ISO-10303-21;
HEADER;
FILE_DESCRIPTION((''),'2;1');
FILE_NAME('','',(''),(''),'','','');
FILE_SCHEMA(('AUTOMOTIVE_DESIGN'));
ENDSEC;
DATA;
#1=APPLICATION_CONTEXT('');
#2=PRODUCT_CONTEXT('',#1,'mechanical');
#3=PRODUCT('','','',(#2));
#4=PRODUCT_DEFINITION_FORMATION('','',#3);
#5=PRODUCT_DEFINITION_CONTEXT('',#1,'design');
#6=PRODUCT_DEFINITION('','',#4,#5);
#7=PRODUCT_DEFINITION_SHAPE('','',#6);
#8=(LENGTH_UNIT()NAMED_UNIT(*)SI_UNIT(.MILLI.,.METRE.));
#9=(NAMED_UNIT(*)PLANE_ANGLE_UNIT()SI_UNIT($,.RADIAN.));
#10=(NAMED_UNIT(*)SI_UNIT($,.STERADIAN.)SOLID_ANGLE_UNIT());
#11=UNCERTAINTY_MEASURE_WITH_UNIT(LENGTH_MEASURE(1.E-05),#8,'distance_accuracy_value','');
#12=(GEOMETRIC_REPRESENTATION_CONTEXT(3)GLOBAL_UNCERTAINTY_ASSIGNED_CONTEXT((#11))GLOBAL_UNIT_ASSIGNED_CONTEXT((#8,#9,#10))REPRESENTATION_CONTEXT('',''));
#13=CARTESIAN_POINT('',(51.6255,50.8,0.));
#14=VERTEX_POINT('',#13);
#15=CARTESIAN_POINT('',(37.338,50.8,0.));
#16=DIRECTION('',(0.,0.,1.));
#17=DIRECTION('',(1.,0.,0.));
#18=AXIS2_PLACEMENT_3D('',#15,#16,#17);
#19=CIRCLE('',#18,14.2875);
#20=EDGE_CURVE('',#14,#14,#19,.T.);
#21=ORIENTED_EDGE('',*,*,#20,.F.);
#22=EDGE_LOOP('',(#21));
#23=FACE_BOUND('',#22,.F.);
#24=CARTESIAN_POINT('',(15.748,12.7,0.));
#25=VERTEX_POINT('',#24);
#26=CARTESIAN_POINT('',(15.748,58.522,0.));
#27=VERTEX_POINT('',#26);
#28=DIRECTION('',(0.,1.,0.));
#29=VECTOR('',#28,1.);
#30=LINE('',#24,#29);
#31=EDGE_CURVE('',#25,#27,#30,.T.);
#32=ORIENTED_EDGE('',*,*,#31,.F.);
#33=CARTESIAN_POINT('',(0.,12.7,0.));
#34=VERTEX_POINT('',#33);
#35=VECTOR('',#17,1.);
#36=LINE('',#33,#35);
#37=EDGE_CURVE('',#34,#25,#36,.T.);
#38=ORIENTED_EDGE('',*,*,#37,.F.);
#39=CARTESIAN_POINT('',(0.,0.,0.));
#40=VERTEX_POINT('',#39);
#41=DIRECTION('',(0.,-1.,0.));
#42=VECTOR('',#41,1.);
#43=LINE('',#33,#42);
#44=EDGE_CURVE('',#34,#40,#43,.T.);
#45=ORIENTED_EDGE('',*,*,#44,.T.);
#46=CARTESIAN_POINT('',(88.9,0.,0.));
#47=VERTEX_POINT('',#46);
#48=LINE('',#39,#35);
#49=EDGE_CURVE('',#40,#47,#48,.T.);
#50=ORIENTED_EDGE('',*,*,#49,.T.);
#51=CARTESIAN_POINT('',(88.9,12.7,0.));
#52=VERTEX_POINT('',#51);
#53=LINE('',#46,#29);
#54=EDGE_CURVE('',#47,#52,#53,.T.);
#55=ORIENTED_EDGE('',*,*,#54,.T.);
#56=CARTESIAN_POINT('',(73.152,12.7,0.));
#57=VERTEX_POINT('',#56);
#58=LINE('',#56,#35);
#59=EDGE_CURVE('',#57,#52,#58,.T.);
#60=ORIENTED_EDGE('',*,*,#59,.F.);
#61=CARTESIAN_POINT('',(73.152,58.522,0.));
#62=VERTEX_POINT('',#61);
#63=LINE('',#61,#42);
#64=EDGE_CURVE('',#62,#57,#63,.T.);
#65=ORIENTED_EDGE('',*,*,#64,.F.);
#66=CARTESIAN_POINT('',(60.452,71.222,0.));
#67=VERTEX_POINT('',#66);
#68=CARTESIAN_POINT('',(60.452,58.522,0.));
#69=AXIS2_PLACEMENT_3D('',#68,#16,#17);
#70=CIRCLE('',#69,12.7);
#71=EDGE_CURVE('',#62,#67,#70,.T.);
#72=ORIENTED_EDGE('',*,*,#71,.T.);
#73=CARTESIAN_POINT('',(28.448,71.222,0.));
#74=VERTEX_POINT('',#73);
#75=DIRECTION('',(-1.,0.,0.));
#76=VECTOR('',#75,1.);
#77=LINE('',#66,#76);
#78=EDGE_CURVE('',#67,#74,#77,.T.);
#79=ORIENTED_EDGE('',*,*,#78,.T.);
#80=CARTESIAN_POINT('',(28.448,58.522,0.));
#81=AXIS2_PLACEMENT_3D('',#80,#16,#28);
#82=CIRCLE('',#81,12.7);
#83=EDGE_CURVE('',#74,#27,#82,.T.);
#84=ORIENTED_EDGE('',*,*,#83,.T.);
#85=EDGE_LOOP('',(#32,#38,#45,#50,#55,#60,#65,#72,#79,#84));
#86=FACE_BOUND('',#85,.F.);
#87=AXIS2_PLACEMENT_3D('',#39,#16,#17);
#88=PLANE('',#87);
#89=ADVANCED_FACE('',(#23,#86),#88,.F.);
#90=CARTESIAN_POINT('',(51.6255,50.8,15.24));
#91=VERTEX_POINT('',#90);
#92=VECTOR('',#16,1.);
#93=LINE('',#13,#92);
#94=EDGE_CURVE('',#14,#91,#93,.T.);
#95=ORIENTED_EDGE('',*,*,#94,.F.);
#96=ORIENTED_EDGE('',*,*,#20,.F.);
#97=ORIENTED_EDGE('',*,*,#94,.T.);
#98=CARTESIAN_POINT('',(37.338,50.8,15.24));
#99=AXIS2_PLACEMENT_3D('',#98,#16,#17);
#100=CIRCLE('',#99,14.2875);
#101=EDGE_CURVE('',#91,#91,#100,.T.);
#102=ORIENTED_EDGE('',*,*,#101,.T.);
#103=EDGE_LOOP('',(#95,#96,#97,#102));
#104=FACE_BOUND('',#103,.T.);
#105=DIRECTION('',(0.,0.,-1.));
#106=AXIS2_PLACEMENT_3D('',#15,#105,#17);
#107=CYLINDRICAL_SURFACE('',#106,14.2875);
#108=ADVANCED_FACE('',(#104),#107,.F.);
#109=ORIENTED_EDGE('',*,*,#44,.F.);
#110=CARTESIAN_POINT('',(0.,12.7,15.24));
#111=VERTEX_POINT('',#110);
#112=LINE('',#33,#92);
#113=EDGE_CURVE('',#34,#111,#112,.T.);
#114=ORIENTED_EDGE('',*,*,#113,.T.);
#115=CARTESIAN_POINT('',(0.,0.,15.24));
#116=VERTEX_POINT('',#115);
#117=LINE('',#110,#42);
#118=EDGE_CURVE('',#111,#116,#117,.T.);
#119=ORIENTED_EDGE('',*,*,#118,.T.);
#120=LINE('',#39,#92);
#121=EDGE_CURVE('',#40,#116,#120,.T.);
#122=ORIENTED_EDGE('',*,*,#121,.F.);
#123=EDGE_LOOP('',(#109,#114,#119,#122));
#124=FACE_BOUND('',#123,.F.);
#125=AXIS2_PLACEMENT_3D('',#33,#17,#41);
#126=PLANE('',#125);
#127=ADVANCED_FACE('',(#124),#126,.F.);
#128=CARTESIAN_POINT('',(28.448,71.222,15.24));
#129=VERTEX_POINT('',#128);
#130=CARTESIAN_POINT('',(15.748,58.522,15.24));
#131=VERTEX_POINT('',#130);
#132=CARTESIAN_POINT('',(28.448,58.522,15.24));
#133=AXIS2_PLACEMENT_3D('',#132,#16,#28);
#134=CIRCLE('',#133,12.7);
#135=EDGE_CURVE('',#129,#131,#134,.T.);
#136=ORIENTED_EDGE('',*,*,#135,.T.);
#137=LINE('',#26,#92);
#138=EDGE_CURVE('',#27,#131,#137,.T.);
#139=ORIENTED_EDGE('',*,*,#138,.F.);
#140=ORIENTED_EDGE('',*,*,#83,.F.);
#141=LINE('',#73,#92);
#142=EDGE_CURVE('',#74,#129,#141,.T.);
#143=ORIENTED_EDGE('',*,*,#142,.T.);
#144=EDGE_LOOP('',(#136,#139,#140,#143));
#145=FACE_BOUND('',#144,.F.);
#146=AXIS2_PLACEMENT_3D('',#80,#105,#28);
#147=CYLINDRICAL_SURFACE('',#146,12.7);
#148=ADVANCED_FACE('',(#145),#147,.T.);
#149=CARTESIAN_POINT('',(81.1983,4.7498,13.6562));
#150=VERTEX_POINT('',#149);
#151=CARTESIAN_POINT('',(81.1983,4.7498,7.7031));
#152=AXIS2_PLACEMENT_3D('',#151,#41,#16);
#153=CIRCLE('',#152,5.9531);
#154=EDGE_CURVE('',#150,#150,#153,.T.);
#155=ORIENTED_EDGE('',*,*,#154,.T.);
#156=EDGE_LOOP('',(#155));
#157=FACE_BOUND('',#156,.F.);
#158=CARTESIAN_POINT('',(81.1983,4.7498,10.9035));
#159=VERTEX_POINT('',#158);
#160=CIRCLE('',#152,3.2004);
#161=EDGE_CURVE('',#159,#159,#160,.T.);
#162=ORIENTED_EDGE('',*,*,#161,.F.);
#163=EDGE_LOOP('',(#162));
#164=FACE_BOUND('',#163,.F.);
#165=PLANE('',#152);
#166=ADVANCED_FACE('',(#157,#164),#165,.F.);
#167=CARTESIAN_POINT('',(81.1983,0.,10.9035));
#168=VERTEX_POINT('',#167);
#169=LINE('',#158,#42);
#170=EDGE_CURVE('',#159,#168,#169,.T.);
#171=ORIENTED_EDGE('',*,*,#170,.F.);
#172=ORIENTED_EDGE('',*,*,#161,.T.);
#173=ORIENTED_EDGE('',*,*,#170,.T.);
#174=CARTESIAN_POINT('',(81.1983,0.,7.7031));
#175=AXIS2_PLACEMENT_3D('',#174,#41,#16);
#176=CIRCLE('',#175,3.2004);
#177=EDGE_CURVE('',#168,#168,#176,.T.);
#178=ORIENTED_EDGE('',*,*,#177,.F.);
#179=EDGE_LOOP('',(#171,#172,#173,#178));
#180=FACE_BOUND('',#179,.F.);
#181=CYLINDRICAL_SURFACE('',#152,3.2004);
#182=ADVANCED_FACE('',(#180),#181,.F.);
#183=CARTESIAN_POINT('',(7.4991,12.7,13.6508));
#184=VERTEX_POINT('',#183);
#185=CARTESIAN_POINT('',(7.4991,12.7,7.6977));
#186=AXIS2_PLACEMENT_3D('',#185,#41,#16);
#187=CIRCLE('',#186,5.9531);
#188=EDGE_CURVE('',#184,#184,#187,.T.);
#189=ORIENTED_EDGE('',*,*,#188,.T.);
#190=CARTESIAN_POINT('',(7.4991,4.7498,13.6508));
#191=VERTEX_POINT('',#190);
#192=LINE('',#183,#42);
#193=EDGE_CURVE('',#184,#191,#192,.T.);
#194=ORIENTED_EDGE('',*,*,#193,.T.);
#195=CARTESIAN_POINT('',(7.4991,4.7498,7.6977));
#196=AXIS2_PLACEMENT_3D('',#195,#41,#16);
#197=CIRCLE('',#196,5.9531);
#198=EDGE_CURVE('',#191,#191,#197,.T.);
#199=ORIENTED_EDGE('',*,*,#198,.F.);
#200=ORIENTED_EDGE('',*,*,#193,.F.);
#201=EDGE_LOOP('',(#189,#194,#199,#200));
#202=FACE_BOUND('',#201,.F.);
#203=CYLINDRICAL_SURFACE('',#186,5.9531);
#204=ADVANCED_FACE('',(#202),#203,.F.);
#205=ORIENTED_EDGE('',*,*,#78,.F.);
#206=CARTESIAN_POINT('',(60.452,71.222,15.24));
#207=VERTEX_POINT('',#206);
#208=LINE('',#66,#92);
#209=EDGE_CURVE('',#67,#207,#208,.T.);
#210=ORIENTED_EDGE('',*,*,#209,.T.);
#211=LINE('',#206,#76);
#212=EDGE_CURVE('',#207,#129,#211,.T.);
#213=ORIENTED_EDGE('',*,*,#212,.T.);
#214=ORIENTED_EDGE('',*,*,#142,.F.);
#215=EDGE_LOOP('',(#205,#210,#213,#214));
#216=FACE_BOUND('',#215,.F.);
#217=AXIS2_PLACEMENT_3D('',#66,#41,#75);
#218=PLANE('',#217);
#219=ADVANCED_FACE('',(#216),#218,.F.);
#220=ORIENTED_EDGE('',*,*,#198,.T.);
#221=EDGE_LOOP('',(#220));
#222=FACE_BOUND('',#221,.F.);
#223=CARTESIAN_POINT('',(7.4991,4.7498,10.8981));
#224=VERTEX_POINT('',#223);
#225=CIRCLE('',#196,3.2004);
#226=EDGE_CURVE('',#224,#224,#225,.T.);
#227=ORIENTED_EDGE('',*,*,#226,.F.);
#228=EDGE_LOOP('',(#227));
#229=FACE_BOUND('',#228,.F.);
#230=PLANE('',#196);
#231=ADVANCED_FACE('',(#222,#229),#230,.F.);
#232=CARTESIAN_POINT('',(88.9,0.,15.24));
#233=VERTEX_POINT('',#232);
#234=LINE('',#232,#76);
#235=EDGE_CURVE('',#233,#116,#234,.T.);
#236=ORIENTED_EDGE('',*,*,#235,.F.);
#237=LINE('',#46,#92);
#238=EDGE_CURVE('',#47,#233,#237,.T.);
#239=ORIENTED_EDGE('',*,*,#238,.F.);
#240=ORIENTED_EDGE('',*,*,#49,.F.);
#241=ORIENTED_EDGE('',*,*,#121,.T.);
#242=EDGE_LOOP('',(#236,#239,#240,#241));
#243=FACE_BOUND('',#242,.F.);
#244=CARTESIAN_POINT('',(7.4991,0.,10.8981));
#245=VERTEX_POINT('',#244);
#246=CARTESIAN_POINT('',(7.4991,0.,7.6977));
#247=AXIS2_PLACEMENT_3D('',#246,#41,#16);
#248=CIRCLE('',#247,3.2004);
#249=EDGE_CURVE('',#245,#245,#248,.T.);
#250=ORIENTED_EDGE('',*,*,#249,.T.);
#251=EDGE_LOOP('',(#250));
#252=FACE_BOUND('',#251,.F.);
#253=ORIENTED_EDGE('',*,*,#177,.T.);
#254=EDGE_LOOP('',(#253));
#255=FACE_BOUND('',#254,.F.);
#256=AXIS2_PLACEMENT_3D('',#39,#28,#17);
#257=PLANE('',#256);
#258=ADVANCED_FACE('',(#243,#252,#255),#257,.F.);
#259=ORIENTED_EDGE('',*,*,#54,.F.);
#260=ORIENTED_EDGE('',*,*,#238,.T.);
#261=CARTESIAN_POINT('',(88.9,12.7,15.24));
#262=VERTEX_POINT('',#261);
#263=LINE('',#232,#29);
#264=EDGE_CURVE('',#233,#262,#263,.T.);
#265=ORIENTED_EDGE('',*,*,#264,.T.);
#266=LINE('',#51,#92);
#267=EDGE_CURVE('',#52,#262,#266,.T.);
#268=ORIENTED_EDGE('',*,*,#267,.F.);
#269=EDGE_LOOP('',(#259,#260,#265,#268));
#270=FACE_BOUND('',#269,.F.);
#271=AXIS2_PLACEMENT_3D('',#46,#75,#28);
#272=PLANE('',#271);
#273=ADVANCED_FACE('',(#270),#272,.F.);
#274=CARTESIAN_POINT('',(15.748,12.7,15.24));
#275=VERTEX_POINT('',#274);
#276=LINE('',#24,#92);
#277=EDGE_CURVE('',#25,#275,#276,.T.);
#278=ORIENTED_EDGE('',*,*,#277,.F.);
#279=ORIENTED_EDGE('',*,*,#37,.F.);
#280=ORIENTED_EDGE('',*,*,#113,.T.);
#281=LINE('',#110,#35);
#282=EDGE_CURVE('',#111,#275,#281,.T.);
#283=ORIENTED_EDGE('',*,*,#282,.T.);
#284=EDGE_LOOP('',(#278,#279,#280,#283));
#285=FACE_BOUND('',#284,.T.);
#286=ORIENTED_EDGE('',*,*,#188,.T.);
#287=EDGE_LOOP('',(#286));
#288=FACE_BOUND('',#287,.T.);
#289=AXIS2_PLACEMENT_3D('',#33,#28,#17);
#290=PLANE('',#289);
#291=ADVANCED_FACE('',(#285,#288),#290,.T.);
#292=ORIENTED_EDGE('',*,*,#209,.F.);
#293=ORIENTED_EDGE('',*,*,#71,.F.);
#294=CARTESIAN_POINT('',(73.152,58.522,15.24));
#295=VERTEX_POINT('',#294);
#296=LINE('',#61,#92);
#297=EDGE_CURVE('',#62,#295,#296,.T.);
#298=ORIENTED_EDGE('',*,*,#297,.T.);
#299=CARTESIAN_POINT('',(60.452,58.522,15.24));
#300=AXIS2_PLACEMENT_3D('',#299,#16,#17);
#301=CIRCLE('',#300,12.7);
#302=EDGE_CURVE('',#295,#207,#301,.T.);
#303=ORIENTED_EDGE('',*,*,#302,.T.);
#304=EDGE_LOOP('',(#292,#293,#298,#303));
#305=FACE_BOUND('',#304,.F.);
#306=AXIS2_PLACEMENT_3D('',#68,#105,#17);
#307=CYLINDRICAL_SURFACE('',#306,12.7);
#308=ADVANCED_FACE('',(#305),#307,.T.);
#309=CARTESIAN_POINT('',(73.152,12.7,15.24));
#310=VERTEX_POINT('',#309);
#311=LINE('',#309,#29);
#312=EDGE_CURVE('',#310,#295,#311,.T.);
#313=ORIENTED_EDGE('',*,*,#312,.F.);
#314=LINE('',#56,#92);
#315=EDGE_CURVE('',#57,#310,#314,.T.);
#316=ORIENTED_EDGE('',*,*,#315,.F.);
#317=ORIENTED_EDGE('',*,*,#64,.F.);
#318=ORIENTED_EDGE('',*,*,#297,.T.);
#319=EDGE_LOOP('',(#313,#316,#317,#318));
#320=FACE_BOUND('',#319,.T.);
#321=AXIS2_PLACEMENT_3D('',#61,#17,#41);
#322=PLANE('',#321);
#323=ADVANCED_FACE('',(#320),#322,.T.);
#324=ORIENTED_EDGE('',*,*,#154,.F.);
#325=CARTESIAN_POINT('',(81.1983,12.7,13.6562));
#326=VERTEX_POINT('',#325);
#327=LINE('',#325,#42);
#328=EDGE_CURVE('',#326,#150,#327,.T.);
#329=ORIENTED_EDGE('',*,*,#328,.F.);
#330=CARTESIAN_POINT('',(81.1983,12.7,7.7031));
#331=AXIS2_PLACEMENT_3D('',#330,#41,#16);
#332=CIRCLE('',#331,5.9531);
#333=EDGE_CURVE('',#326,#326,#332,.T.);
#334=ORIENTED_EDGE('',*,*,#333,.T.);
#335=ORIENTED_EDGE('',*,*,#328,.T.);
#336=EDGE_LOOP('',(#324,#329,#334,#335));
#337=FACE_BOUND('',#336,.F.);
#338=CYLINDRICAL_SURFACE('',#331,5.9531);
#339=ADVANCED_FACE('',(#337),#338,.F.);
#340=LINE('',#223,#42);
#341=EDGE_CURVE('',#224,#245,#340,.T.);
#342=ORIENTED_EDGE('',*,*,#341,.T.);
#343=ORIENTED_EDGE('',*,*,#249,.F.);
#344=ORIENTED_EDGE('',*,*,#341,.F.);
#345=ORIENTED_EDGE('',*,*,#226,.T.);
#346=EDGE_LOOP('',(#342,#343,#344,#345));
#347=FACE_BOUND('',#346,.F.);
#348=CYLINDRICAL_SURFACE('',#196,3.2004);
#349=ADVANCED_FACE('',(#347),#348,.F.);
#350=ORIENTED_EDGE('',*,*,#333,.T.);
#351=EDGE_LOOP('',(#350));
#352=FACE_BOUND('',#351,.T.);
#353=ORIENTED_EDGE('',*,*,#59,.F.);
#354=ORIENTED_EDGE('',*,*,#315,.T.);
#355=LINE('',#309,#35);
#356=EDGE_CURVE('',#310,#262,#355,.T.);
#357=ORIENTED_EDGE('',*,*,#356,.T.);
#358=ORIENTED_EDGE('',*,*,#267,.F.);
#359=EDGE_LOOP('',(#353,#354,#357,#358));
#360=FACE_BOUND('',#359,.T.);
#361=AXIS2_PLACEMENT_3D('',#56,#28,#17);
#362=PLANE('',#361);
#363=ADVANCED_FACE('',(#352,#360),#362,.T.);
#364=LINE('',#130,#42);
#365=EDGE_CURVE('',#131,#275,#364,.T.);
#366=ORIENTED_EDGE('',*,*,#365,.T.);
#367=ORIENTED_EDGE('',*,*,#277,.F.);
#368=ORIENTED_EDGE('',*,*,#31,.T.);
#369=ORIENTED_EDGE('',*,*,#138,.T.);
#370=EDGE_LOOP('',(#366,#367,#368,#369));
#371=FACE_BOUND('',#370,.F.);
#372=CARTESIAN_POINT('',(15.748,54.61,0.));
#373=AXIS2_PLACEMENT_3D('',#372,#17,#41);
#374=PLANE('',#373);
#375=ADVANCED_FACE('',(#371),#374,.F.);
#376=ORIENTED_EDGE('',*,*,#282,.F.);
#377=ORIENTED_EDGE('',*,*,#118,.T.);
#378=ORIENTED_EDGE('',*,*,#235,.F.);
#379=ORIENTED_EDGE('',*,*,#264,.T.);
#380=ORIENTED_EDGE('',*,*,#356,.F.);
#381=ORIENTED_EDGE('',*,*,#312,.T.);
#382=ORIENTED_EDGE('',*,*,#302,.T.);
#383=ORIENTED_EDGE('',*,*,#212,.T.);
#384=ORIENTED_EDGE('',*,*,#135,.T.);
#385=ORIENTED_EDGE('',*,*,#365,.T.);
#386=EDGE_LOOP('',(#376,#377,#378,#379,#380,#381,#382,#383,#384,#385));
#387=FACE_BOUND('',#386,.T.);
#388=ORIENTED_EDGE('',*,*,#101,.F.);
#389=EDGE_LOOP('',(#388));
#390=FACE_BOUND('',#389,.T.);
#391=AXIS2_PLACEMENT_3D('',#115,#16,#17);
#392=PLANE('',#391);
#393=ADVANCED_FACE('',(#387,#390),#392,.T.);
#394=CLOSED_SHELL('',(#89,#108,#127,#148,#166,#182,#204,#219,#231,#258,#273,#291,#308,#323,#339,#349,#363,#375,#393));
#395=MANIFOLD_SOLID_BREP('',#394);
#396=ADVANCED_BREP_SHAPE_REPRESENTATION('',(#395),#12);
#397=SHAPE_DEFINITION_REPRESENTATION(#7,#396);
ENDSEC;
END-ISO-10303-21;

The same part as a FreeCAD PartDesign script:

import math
import FreeCAD as App
import Part
import Sketcher

V = App.Vector
Q = App.Units.Quantity

doc = App.newDocument("Part")
body = doc.addObject("PartDesign::Body", "Body")

# Sketch on XY plane
sketch1 = body.newObject("Sketcher::SketchObject", "Sketch")
sketch1.AttachmentSupport = (doc.getObject("XY_Plane"), [""])
sketch1.MapMode = "FlatFace"
sketch1.addGeometry(Part.LineSegment(V(0, 13, 0), V(0, 0, 0)), False)
sketch1.addGeometry(Part.LineSegment(V(0, 0, 0), V(89, 0, 0)), False)
sketch1.addGeometry(Part.LineSegment(V(89, 0, 0), V(89, 13, 0)), False)
sketch1.addGeometry(Part.LineSegment(V(89, 13, 0), V(73, 13, 0)), False)
sketch1.addGeometry(Part.LineSegment(V(73, 13, 0), V(73, 59, 0)), False)
sketch1.addGeometry(Part.ArcOfCircle(Part.Circle(V(60, 59, 0), V(0, 0, 1), 13), math.radians(0), math.radians(90)), False)
sketch1.addGeometry(Part.LineSegment(V(60, 71, 0), V(28, 71, 0)), False)
sketch1.addGeometry(Part.ArcOfCircle(Part.Circle(V(28, 59, 0), V(0, 0, 1), 13), math.radians(90), math.radians(180)), False)
sketch1.addGeometry(Part.LineSegment(V(16, 59, 0), V(16, 13, 0)), False)
sketch1.addGeometry(Part.LineSegment(V(16, 13, 0), V(0, 13, 0)), False)
sketch1.addGeometry(Part.Circle(V(37, 51, 0), V(0, 0, 1), 14), False)
sketch1.addConstraint(Sketcher.Constraint("Coincident", 0, 2, 1, 1))
sketch1.addConstraint(Sketcher.Constraint("Coincident", 1, 2, 2, 1))
sketch1.addConstraint(Sketcher.Constraint("Coincident", 2, 2, 3, 1))
sketch1.addConstraint(Sketcher.Constraint("Coincident", 3, 2, 4, 1))
sketch1.addConstraint(Sketcher.Constraint("Tangent", 4, 2, 5, 1))
sketch1.addConstraint(Sketcher.Constraint("Tangent", 5, 2, 6, 1))
sketch1.addConstraint(Sketcher.Constraint("Tangent", 6, 2, 7, 1))
sketch1.addConstraint(Sketcher.Constraint("Tangent", 7, 2, 8, 1))
sketch1.addConstraint(Sketcher.Constraint("Coincident", 8, 2, 9, 1))
sketch1.addConstraint(Sketcher.Constraint("Coincident", 9, 2, 0, 1))
sketch1.addConstraint(Sketcher.Constraint("Vertical", 0))
sketch1.addConstraint(Sketcher.Constraint("Horizontal", 1))
sketch1.addConstraint(Sketcher.Constraint("Vertical", 2))
sketch1.addConstraint(Sketcher.Constraint("Horizontal", 3))
sketch1.addConstraint(Sketcher.Constraint("Vertical", 4))
sketch1.addConstraint(Sketcher.Constraint("Horizontal", 6))
sketch1.addConstraint(Sketcher.Constraint("Vertical", 8))
sketch1.addConstraint(Sketcher.Constraint("Horizontal", 9))
sketch1.addConstraint(Sketcher.Constraint("Coincident", 0, 2, -1, 1))
sketch1.addConstraint(Sketcher.Constraint("Equal", 5, 7))
sketch1.addConstraint(Sketcher.Constraint("Horizontal", 3, 2, 8, 2))
sketch1.addConstraint(Sketcher.Constraint("Equal", 3, 9))
sketch1.addConstraint(Sketcher.Constraint("Radius", 5, Q("0.5 in")))
sketch1.addConstraint(Sketcher.Constraint("Diameter", 10, Q("1.125 in")))
sketch1.addConstraint(Sketcher.Constraint("DistanceX", 1, 1, 1, 2, Q("3.5 in")))
sketch1.addConstraint(Sketcher.Constraint("DistanceY", 0, 2, 0, 1, Q("0.5 in")))
sketch1.addConstraint(Sketcher.Constraint("DistanceX", 3, 2, 3, 1, Q("0.62 in")))
sketch1.addConstraint(Sketcher.Constraint("DistanceX", 7, 2, 10, 3, Q("0.85 in")))
sketch1.addConstraint(Sketcher.Constraint("DistanceY", -1, 1, 10, 3, Q("2 in")))
sketch1.addConstraint(Sketcher.Constraint("DistanceY", 4, 1, 4, 2, 45.822))
pad1 = body.newObject("PartDesign::Pad", "Pad")
pad1.Profile = sketch1
pad1.Length = Q("0.6 in")

# Sketch on XZ plane
sketch2 = body.newObject("Sketcher::SketchObject", "Sketch001")
sketch2.AttachmentSupport = (doc.getObject("XZ_Plane"), [""])
sketch2.MapMode = "FlatFace"
sketch2.AttachmentOffset = App.Placement(V(0, 0, -0.5 * 25.4), App.Rotation())
sketch2.addGeometry(Part.Circle(V(81.2, 7.7, 0), V(0, 0, 1), 3.2), False)
sketch2.addConstraint(Sketcher.Constraint("Diameter", 0, Q("0.252 in")))
sketch2.addConstraint(Sketcher.Constraint("DistanceX", -1, 1, 0, 3, 81.1983))
sketch2.addConstraint(Sketcher.Constraint("DistanceY", -1, 1, 0, 3, 7.703))
doc.recompute()
hole = body.newObject("PartDesign::Hole", "Hole")
hole.Profile = sketch2
hole.ThreadType = "None"
hole.Diameter = Q("0.252 in")
hole.DepthType = "ThroughAll"
hole.HoleCutType = "Counterbore"
hole.HoleCutDiameter = Q("0.468748 in")
hole.HoleCutDepth = Q("0.313 in")
hole.Reversed = True

# Sketch on XZ plane
sketch3 = body.newObject("Sketcher::SketchObject", "Sketch002")
sketch3.AttachmentSupport = (doc.getObject("XZ_Plane"), [""])
sketch3.MapMode = "FlatFace"
sketch3.AttachmentOffset = App.Placement(V(0, 0, -0.5 * 25.4), App.Rotation())
sketch3.addGeometry(Part.Circle(V(7.5, 7.7, 0), V(0, 0, 1), 3.2), False)
sketch3.addConstraint(Sketcher.Constraint("Diameter", 0, Q("0.252 in")))
sketch3.addConstraint(Sketcher.Constraint("DistanceX", -1, 1, 0, 3, 7.499))
sketch3.addConstraint(Sketcher.Constraint("DistanceY", -1, 1, 0, 3, 7.6977))
doc.recompute()
hole2 = body.newObject("PartDesign::Hole", "Hole001")
hole2.Profile = sketch3
hole2.ThreadType = "None"
hole2.Diameter = Q("0.252 in")
hole2.DepthType = "ThroughAll"
hole2.HoleCutType = "Counterbore"
hole2.HoleCutDiameter = Q("0.468748 in")
hole2.HoleCutDepth = Q("0.313 in")
hole2.Reversed = True

doc.recompute()
